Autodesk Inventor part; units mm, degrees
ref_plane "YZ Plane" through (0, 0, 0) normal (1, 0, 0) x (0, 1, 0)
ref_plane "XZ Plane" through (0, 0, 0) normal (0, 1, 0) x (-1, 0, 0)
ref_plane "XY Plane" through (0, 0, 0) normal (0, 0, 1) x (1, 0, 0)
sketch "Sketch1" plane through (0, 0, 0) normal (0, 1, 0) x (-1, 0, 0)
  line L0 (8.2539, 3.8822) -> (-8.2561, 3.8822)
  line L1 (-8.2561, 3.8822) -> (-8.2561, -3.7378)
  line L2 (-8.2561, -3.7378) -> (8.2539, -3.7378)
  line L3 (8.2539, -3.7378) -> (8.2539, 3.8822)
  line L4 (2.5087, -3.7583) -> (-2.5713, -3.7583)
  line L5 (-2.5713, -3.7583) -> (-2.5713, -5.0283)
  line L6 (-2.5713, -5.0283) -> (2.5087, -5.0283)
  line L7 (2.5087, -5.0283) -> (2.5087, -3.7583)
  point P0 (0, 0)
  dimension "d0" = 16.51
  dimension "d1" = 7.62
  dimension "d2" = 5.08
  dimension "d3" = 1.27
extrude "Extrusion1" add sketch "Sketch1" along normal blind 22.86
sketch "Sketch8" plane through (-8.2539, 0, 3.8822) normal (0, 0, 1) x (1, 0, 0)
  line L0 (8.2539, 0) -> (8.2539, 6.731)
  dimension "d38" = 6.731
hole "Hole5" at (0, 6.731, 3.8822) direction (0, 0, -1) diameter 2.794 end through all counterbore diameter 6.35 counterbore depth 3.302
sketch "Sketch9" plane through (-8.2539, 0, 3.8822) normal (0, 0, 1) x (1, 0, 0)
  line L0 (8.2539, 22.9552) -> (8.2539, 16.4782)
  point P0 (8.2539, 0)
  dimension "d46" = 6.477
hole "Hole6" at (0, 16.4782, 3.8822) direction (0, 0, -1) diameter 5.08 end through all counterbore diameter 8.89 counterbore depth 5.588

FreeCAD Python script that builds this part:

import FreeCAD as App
import Part
import Sketcher
from FreeCAD import Vector
Q = App.Units.Quantity

doc = App.newDocument("Part")
body = doc.addObject("PartDesign::Body", "Body")
body.AllowCompound = True

# Sketch on XZ plane
sketch1 = body.newObject("Sketcher::SketchObject", "Sketch")
sketch1.AttachmentSupport = (doc.getObject("XZ_Plane"), [""])
sketch1.MapMode = "FlatFace"
sketch1.addGeometry(Part.LineSegment(Vector(-8.2539, -3.7378, 0), Vector(-8.2539, 3.8822, 0)), False)
sketch1.addGeometry(Part.LineSegment(Vector(-8.2539, 3.8822, 0), Vector(8.2561, 3.8822, 0)), False)
sketch1.addGeometry(Part.LineSegment(Vector(8.2561, 3.8822, 0), Vector(8.2561, -3.7378, 0)), False)
sketch1.addGeometry(Part.LineSegment(Vector(8.2561, -3.7378, 0), Vector(-8.2539, -3.7378, 0)), False)
sketch1.addGeometry(Part.LineSegment(Vector(-2.5087, -5.0283, 0), Vector(-2.5087, -3.7583, 0)), False)
sketch1.addGeometry(Part.LineSegment(Vector(-2.5087, -3.7583, 0), Vector(2.5713, -3.7583, 0)), False)
sketch1.addGeometry(Part.LineSegment(Vector(2.5713, -3.7583, 0), Vector(2.5713, -5.0283, 0)), False)
sketch1.addGeometry(Part.LineSegment(Vector(2.5713, -5.0283, 0), Vector(-2.5087, -5.0283, 0)), False)
sketch1.addConstraint(Sketcher.Constraint("Coincident", 0, 2, 1, 1))
sketch1.addConstraint(Sketcher.Constraint("Coincident", 1, 2, 2, 1))
sketch1.addConstraint(Sketcher.Constraint("Coincident", 2, 2, 3, 1))
sketch1.addConstraint(Sketcher.Constraint("Coincident", 3, 2, 0, 1))
sketch1.addConstraint(Sketcher.Constraint("Coincident", 4, 2, 5, 1))
sketch1.addConstraint(Sketcher.Constraint("Coincident", 5, 2, 6, 1))
sketch1.addConstraint(Sketcher.Constraint("Coincident", 6, 2, 7, 1))
sketch1.addConstraint(Sketcher.Constraint("Coincident", 7, 2, 4, 1))
sketch1.addConstraint(Sketcher.Constraint("Vertical", 0))
sketch1.addConstraint(Sketcher.Constraint("Horizontal", 1))
sketch1.addConstraint(Sketcher.Constraint("Vertical", 2))
sketch1.addConstraint(Sketcher.Constraint("Horizontal", 3))
sketch1.addConstraint(Sketcher.Constraint("Vertical", 4))
sketch1.addConstraint(Sketcher.Constraint("Horizontal", 5))
sketch1.addConstraint(Sketcher.Constraint("Vertical", 6))
sketch1.addConstraint(Sketcher.Constraint("Horizontal", 7))
sketch1.addConstraint(Sketcher.Constraint("DistanceX", 5, 1, 5, 2, Q("0.2 in")))
sketch1.addConstraint(Sketcher.Constraint("DistanceY", 0, 1, 0, 2, Q("0.3 in")))
sketch1.addConstraint(Sketcher.Constraint("DistanceX", 1, 1, 1, 2, Q("0.65 in")))
sketch1.addConstraint(Sketcher.Constraint("DistanceY", 4, 1, 4, 2, Q("0.05 in")))
sketch1.addConstraint(Sketcher.Constraint("DistanceX", 3, 2, 4, 2, Q("0.2262 in")))
sketch1.addConstraint(Sketcher.Constraint("DistanceY", 4, 2, 3, 2, Q("0.0008 in")))
sketch1.addConstraint(Sketcher.Constraint("DistanceX", 0, 2, -1, 1, Q("8.254 mm")))
sketch1.addConstraint(Sketcher.Constraint("DistanceY", -1, 1, 0, 2, Q("3.8822 mm")))
pad1 = body.newObject("PartDesign::Pad", "Pad")
pad1.Profile = sketch1
pad1.Length = Q("0.9 in")
pad1.Reversed = True

# Sketch on XY plane
sketch2 = body.newObject("Sketcher::SketchObject", "Sketch001")
sketch2.AttachmentSupport = (doc.getObject("XY_Plane"), [""])
sketch2.MapMode = "FlatFace"
sketch2.AttachmentOffset = App.Placement(Vector(0, 0, 3.8822), App.Rotation())
sketch2.addGeometry(Part.Circle(Vector(0, 6.731, 0), Vector(0, 0, 1), 1.397), False)
sketch2.addConstraint(Sketcher.Constraint("PointOnObject", 0, 3, -2))
sketch2.addConstraint(Sketcher.Constraint("Diameter", 0, Q("0.11 in")))
sketch2.addConstraint(Sketcher.Constraint("DistanceY", -1, 1, 0, 3, Q("0.265 in")))
doc.recompute()
hole = body.newObject("PartDesign::Hole", "Hole")
hole.Profile = sketch2
hole.ThreadType = "None"
hole.Diameter = Q("0.11 in")
hole.DepthType = "ThroughAll"
hole.HoleCutType = "Counterbore"
hole.HoleCutDiameter = Q("0.25 in")
hole.HoleCutDepth = Q("0.13 in")

# Sketch on XY plane
sketch3 = body.newObject("Sketcher::SketchObject", "Sketch002")
sketch3.AttachmentSupport = (doc.getObject("XY_Plane"), [""])
sketch3.MapMode = "FlatFace"
sketch3.AttachmentOffset = App.Placement(Vector(0, 0, 3.8822), App.Rotation())
sketch3.addGeometry(Part.Circle(Vector(0, 16.4782, 0), Vector(0, 0, 1), 2.54), False)
sketch3.addConstraint(Sketcher.Constraint("PointOnObject", 0, 3, -2))
sketch3.addConstraint(Sketcher.Constraint("Diameter", 0, Q("0.2 in")))
sketch3.addConstraint(Sketcher.Constraint("DistanceY", -1, 1, 0, 3, Q("16.4782 mm")))
doc.recompute()
hole2 = body.newObject("PartDesign::Hole", "Hole001")
hole2.Profile = sketch3
hole2.ThreadType = "None"
hole2.Diameter = Q("0.2 in")
hole2.DepthType = "ThroughAll"
hole2.HoleCutType = "Counterbore"
hole2.HoleCutDiameter = Q("0.35 in")
hole2.HoleCutDepth = Q("0.22 in")

doc.recompute()
